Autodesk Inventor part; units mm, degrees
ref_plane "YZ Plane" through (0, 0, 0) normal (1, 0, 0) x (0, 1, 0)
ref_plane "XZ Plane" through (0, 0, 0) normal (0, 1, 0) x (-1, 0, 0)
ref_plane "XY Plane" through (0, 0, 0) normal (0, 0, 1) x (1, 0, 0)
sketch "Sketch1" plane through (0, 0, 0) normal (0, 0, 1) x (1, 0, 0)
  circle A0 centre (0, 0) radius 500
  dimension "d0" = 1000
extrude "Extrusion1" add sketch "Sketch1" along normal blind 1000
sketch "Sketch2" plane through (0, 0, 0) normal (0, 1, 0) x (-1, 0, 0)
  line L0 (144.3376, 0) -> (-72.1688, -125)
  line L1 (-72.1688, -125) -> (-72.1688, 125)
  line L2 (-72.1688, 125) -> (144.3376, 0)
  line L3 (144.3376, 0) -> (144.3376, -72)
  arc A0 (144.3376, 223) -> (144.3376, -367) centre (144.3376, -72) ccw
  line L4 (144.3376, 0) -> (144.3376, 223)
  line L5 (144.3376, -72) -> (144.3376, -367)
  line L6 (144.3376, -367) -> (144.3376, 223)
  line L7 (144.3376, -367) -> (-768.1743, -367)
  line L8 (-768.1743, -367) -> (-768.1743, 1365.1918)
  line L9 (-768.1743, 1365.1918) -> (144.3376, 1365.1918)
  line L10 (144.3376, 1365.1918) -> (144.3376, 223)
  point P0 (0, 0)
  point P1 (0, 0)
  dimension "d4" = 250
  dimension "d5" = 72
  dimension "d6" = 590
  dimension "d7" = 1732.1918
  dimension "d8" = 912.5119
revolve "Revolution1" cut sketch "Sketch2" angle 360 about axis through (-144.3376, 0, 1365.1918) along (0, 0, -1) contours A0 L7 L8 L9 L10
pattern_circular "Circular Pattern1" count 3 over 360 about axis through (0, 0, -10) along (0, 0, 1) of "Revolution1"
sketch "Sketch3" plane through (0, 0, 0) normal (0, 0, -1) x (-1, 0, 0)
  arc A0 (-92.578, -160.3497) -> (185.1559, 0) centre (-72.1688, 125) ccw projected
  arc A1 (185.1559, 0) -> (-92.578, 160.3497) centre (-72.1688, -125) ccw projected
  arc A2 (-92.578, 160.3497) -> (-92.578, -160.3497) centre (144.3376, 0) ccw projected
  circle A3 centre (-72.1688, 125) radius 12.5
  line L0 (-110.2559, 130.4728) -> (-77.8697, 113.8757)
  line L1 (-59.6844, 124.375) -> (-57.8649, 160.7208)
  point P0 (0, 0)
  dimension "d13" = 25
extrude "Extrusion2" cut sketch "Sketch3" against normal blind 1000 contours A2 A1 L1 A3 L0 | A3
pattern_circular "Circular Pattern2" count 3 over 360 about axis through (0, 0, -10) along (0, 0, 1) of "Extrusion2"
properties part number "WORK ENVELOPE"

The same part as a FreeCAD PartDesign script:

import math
import FreeCAD as App
import Part
import Sketcher

doc = App.newDocument("Part")
body = doc.addObject("PartDesign::Body", "Body")

# Sketch on XY plane
sketch1 = body.newObject("Sketcher::SketchObject", "Sketch")
sketch1.AttachmentSupport = (doc.getObject("XY_Plane"), [""])
sketch1.MapMode = "FlatFace"
sketch1.addGeometry(Part.Circle(App.Vector(0, 0, 0), App.Vector(0, 0, 1), 500), False)
sketch1.addConstraint(Sketcher.Constraint("Coincident", 0, 3, -1, 1))
sketch1.addConstraint(Sketcher.Constraint("Diameter", 0, 1000.0))
pad1 = body.newObject("PartDesign::Pad", "Pad")
pad1.Profile = sketch1
pad1.Length = 1000

# Sketch on XZ plane
sketch2 = body.newObject("Sketcher::SketchObject", "Sketch001")
sketch2.AttachmentSupport = (doc.getObject("XZ_Plane"), [""])
sketch2.MapMode = "FlatFace"
sketch2.addGeometry(Part.ArcOfCircle(Part.Circle(App.Vector(-144, -72, 0), App.Vector(0, 0, 1), 295), math.radians(-90), math.radians(90)), False)
sketch2.addGeometry(Part.LineSegment(App.Vector(-144, 223, 0), App.Vector(-144, 1365, 0)), False)
sketch2.addGeometry(Part.LineSegment(App.Vector(-144, 1365, 0), App.Vector(768, 1365, 0)), False)
sketch2.addGeometry(Part.LineSegment(App.Vector(768, 1365, 0), App.Vector(768, -367, 0)), False)
sketch2.addGeometry(Part.LineSegment(App.Vector(768, -367, 0), App.Vector(-144, -367, 0)), False)
sketch2.addGeometry(Part.LineSegment(App.Vector(-144, 1365, 0), App.Vector(-144, -367, 0)), True)  # axis
sketch2.addConstraint(Sketcher.Constraint("Coincident", 0, 2, 1, 1))
sketch2.addConstraint(Sketcher.Constraint("Coincident", 1, 2, 2, 1))
sketch2.addConstraint(Sketcher.Constraint("Coincident", 2, 2, 3, 1))
sketch2.addConstraint(Sketcher.Constraint("Coincident", 3, 2, 4, 1))
sketch2.addConstraint(Sketcher.Constraint("Tangent", 4, 2, 0, 1))
sketch2.addConstraint(Sketcher.Constraint("Vertical", 1))
sketch2.addConstraint(Sketcher.Constraint("Horizontal", 2))
sketch2.addConstraint(Sketcher.Constraint("Vertical", 3))
sketch2.addConstraint(Sketcher.Constraint("Horizontal", 4))
sketch2.addConstraint(Sketcher.Constraint("Vertical", 5))
sketch2.addConstraint(Sketcher.Constraint("Coincident", 5, 1, 1, 2))
sketch2.addConstraint(Sketcher.Constraint("Coincident", 5, 2, 4, 2))
sketch2.addConstraint(Sketcher.Constraint("Radius", 0, 295.0))
sketch2.addConstraint(Sketcher.Constraint("DistanceY", 0, 3, -1, 1, 72.0))
sketch2.addConstraint(Sketcher.Constraint("DistanceX", 2, 1, 2, 2, 912.512))
sketch2.addConstraint(Sketcher.Constraint("DistanceY", 3, 2, 3, 1, 1732.1918))
sketch2.addConstraint(Sketcher.Constraint("DistanceX", 0, 3, -1, 1, 144.3376))
groove = body.newObject("PartDesign::Groove", "Groove")
groove.Profile = sketch2
groove.ReferenceAxis = (sketch2, ["Axis0"])
groove.Angle = 360
doc.recompute()

polarpattern = body.newObject("PartDesign::PolarPattern", "PolarPattern")
polarpattern.Originals = [groove]
polarpattern.Axis = (doc.getObject("Z_Axis"), [""])
polarpattern.Angle = 360
polarpattern.Occurrences = 3
body.Tip = polarpattern

# Sketch on XY plane
sketch3 = body.newObject("Sketcher::SketchObject", "Sketch002")
sketch3.AttachmentSupport = (doc.getObject("XY_Plane"), [""])
sketch3.MapMode = "FlatFace"
sketch3.addGeometry(Part.ArcOfCircle(Part.Circle(App.Vector(-144, 0, 0), App.Vector(0, 0, 1), 286), math.radians(27.13), math.radians(34.09)), False)
sketch3.addGeometry(Part.LineSegment(App.Vector(110, 130, 0), App.Vector(78, 114, 0)), False)
sketch3.addGeometry(Part.ArcOfCircle(Part.Circle(App.Vector(72, 125, 0), App.Vector(0, 0, 1), 12), math.radians(-177), math.radians(-63)), False)
sketch3.addGeometry(Part.LineSegment(App.Vector(60, 124, 0), App.Vector(58, 161, 0)), False)
sketch3.addGeometry(Part.ArcOfCircle(Part.Circle(App.Vector(72, -125, 0), App.Vector(0, 0, 1), 286), math.radians(85.91), math.radians(92.87)), False)
sketch3.addConstraint(Sketcher.Constraint("Coincident", 0, 1, 1, 1))
sketch3.addConstraint(Sketcher.Constraint("Tangent", 1, 2, 2, 2))
sketch3.addConstraint(Sketcher.Constraint("Tangent", 2, 1, 3, 1))
sketch3.addConstraint(Sketcher.Constraint("Coincident", 3, 2, 4, 2))
sketch3.addConstraint(Sketcher.Constraint("Coincident", 4, 1, 0, 2))
sketch3.addConstraint(Sketcher.Constraint("Equal", 0, 4))
sketch3.addConstraint(Sketcher.Constraint("Symmetric", 2, 3, 4, 3, -1))
sketch3.addConstraint(Sketcher.Constraint("PointOnObject", 0, 3, -1))
sketch3.addConstraint(Sketcher.Constraint("Equal", 1, 3))
sketch3.addConstraint(Sketcher.Constraint("Radius", 2, 12.5))
sketch3.addConstraint(Sketcher.Constraint("DistanceY", -1, 1, 2, 3, 125.0))
sketch3.addConstraint(Sketcher.Constraint("Radius", 0, 286.0787))
sketch3.addConstraint(Sketcher.Constraint("DistanceX", -1, 1, 0, 1, 110.256))
sketch3.addConstraint(Sketcher.Constraint("DistanceY", -1, 1, 2, 1, 124.375))
sketch3.addConstraint(Sketcher.Constraint("DistanceX", -1, 1, 3, 2, 57.865))
pocket1 = body.newObject("PartDesign::Pocket", "Pocket")
pocket1.Profile = sketch3
pocket1.Length = 1000
pocket1.Reversed = True
doc.recompute()

polarpattern2 = body.newObject("PartDesign::PolarPattern", "PolarPattern001")
polarpattern2.Originals = [pocket1]
polarpattern2.Axis = (doc.getObject("Z_Axis"), [""])
polarpattern2.Angle = 360
polarpattern2.Occurrences = 3
body.Tip = polarpattern2

doc.recompute()
